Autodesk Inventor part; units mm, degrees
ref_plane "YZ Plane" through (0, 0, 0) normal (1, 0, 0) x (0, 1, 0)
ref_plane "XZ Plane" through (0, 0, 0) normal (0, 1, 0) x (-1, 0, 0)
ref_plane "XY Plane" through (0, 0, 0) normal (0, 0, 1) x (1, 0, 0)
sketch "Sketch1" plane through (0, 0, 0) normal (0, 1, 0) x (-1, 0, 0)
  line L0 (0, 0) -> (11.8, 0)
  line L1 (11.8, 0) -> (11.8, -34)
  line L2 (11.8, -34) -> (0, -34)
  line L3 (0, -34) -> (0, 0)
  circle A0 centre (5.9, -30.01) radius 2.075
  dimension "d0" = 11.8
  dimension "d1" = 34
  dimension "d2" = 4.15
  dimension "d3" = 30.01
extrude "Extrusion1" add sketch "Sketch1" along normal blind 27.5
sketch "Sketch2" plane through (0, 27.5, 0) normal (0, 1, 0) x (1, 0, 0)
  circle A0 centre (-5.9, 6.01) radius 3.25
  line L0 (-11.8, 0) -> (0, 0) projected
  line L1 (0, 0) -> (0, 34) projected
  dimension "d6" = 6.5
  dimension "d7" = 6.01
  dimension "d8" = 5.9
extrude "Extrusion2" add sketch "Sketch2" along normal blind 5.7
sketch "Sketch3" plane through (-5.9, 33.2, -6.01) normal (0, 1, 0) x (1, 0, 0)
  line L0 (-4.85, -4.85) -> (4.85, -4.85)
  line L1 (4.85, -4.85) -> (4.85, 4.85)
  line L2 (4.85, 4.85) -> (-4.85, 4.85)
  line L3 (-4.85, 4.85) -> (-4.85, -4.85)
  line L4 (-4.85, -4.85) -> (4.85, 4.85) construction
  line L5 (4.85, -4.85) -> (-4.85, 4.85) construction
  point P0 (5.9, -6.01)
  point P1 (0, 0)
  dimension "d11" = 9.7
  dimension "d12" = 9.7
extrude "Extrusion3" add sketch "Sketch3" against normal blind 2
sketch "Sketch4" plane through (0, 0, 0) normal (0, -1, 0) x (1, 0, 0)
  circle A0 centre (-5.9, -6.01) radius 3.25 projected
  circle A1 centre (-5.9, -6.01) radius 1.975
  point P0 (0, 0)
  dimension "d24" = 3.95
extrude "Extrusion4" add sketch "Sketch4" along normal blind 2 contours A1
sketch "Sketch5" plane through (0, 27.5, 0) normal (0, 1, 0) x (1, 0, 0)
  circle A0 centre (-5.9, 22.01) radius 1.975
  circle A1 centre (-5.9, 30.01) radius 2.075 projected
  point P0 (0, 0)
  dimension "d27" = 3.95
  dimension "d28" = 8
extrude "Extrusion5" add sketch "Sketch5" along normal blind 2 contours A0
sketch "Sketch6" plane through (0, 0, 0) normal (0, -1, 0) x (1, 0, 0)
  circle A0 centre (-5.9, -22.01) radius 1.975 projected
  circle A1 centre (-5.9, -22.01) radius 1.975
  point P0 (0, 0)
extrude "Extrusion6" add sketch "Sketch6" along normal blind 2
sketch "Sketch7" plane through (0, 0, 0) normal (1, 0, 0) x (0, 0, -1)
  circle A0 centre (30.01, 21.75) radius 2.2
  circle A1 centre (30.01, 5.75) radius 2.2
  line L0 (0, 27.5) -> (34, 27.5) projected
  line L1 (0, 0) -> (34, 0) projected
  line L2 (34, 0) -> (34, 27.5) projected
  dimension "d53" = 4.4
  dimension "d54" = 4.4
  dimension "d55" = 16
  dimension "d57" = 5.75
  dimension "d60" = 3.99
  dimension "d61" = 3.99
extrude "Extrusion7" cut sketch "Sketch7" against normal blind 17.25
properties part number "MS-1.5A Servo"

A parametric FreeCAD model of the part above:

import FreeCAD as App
import Part
import Sketcher
from FreeCAD import Vector

doc = App.newDocument("Part")
body = doc.addObject("PartDesign::Body", "Body")

# Sketch on XZ plane
sketch1 = body.newObject("Sketcher::SketchObject", "Sketch")
sketch1.AttachmentSupport = (doc.getObject("XZ_Plane"), [""])
sketch1.MapMode = "FlatFace"
sketch1.addGeometry([
    Part.LineSegment(Vector(-11.8, 0, 0), Vector(0, 0, 0)),  # 0
    Part.LineSegment(Vector(0, 0, 0), Vector(0, -34, 0)),  # 1
    Part.LineSegment(Vector(0, -34, 0), Vector(-11.8, -34, 0)),  # 2
    Part.LineSegment(Vector(-11.8, -34, 0), Vector(-11.8, 0, 0)),  # 3
    Part.Circle(Vector(-5.9, -30.01, 0), Vector(0, 0, 1), 2.075),  # 4
], False)
sketch1.addConstraint([
    Sketcher.Constraint("Coincident", 0, 2, 1, 1),
    Sketcher.Constraint("Coincident", 1, 2, 2, 1),
    Sketcher.Constraint("Coincident", 2, 2, 3, 1),
    Sketcher.Constraint("Coincident", 3, 2, 0, 1),
    Sketcher.Constraint("Horizontal", 0),
    Sketcher.Constraint("Vertical", 1),
    Sketcher.Constraint("Horizontal", 2),
    Sketcher.Constraint("Vertical", 3),
    Sketcher.Constraint("Coincident", 0, 2, -1, 1),
    Sketcher.Constraint("Diameter", 4, 4.15),
    Sketcher.Constraint("DistanceY", 1, 2, 1, 1, 34.0),
    Sketcher.Constraint("DistanceX", 0, 1, 0, 2, 11.8),
    Sketcher.Constraint("DistanceY", 4, 3, -1, 1, 30.01),
    Sketcher.Constraint("DistanceX", 4, 3, -1, 1, 5.9),
])
pad1 = body.newObject("PartDesign::Pad", "Pad")
pad1.Profile = sketch1
pad1.Length = 27.5
pad1.Reversed = True

# Sketch on XZ plane
sketch2 = body.newObject("Sketcher::SketchObject", "Sketch001")
sketch2.AttachmentSupport = (doc.getObject("XZ_Plane"), [""])
sketch2.MapMode = "FlatFace"
sketch2.AttachmentOffset = App.Placement(Vector(0, 0, -27.5), App.Rotation())
sketch2.addGeometry(Part.Circle(Vector(-5.9, -6.01, 0), Vector(0, 0, 1), 3.25), False)
sketch2.addConstraint([
    Sketcher.Constraint("Diameter", 0, 6.5),
    Sketcher.Constraint("DistanceX", 0, 3, -1, 1, 5.9),
    Sketcher.Constraint("DistanceY", 0, 3, -1, 1, 6.01),
])
pad2 = body.newObject("PartDesign::Pad", "Pad001")
pad2.Profile = sketch2
pad2.Length = 5.7
pad2.Reversed = True

# Sketch on XZ plane
sketch3 = body.newObject("Sketcher::SketchObject", "Sketch002")
sketch3.AttachmentSupport = (doc.getObject("XZ_Plane"), [""])
sketch3.MapMode = "FlatFace"
sketch3.AttachmentOffset = App.Placement(Vector(0, 0, -33.2), App.Rotation())
sketch3.addGeometry([
    Part.LineSegment(Vector(-10.75, -10.86, 0), Vector(-10.75, -1.16, 0)),
    Part.LineSegment(Vector(-10.75, -1.16, 0), Vector(-1.05, -1.16, 0)),
    Part.LineSegment(Vector(-1.05, -1.16, 0), Vector(-1.05, -10.86, 0)),
    Part.LineSegment(Vector(-1.05, -10.86, 0), Vector(-10.75, -10.86, 0)),
], False)
sketch3.addConstraint([
    Sketcher.Constraint("Coincident", 0, 2, 1, 1),
    Sketcher.Constraint("Coincident", 1, 2, 2, 1),
    Sketcher.Constraint("Coincident", 2, 2, 3, 1),
    Sketcher.Constraint("Coincident", 3, 2, 0, 1),
    Sketcher.Constraint("Vertical", 0),
    Sketcher.Constraint("Horizontal", 1),
    Sketcher.Constraint("Vertical", 2),
    Sketcher.Constraint("Horizontal", 3),
    Sketcher.Constraint("Equal", 3, 0),
    Sketcher.Constraint("DistanceX", 1, 1, 1, 2, 9.7),
    Sketcher.Constraint("DistanceX", 0, 2, -1, 1, 10.75),
    Sketcher.Constraint("DistanceY", 0, 2, -1, 1, 1.16),
])
pad3 = body.newObject("PartDesign::Pad", "Pad002")
pad3.Profile = sketch3
pad3.Length = 2

# Sketch on XZ plane
sketch4 = body.newObject("Sketcher::SketchObject", "Sketch003")
sketch4.AttachmentSupport = (doc.getObject("XZ_Plane"), [""])
sketch4.MapMode = "FlatFace"
sketch4.addGeometry(Part.Circle(Vector(-5.9, -6.01, 0), Vector(0, 0, 1), 1.975), False)
sketch4.addConstraint([
    Sketcher.Constraint("Diameter", 0, 3.95),
    Sketcher.Constraint("DistanceX", 0, 3, -1, 1, 5.9),
    Sketcher.Constraint("DistanceY", 0, 3, -1, 1, 6.01),
])
pad4 = body.newObject("PartDesign::Pad", "Pad003")
pad4.Profile = sketch4
pad4.Length = 2

# Sketch on XZ plane
sketch5 = body.newObject("Sketcher::SketchObject", "Sketch004")
sketch5.AttachmentSupport = (doc.getObject("XZ_Plane"), [""])
sketch5.MapMode = "FlatFace"
sketch5.AttachmentOffset = App.Placement(Vector(0, 0, -27.5), App.Rotation())
sketch5.addGeometry(Part.Circle(Vector(-5.9, -22.01, 0), Vector(0, 0, 1), 1.975), False)
sketch5.addConstraint([
    Sketcher.Constraint("Diameter", 0, 3.95),
    Sketcher.Constraint("DistanceX", 0, 3, -1, 1, 5.9),
    Sketcher.Constraint("DistanceY", 0, 3, -1, 1, 22.01),
])
pad5 = body.newObject("PartDesign::Pad", "Pad004")
pad5.Profile = sketch5
pad5.Length = 2
pad5.Reversed = True

# Sketch on XZ plane
sketch6 = body.newObject("Sketcher::SketchObject", "Sketch005")
sketch6.AttachmentSupport = (doc.getObject("XZ_Plane"), [""])
sketch6.MapMode = "FlatFace"
sketch6.addGeometry(Part.Circle(Vector(-5.9, -22.01, 0), Vector(0, 0, 1), 1.975), False)
sketch6.addConstraint([
    Sketcher.Constraint("Diameter", 0, 3.95),
    Sketcher.Constraint("DistanceX", 0, 3, -1, 1, 5.9),
    Sketcher.Constraint("DistanceY", 0, 3, -1, 1, 22.01),
])
pad6 = body.newObject("PartDesign::Pad", "Pad005")
pad6.Profile = sketch6
pad6.Length = 2

# Sketch on YZ plane
sketch7 = body.newObject("Sketcher::SketchObject", "Sketch006")
sketch7.AttachmentSupport = (doc.getObject("YZ_Plane"), [""])
sketch7.MapMode = "FlatFace"
sketch7.addGeometry([
    Part.Circle(Vector(21.75, -30.01, 0), Vector(0, 0, 1), 2.2),
    Part.Circle(Vector(5.75, -30.01, 0), Vector(0, 0, 1), 2.2),
], False)
sketch7.addConstraint([
    Sketcher.Constraint("Equal", 0, 1),
    Sketcher.Constraint("Horizontal", 0, 3, 1, 3),
    Sketcher.Constraint("Diameter", 0, 4.4),
    Sketcher.Constraint("DistanceX", 1, 3, 0, 3, 16.0),
    Sketcher.Constraint("DistanceX", -1, 1, 1, 3, 5.75),
    Sketcher.Constraint("DistanceY", 0, 3, -1, 1, 30.01),
])
pocket1 = body.newObject("PartDesign::Pocket", "Pocket")
pocket1.Profile = sketch7
pocket1.Length = 17.25

doc.recompute()
